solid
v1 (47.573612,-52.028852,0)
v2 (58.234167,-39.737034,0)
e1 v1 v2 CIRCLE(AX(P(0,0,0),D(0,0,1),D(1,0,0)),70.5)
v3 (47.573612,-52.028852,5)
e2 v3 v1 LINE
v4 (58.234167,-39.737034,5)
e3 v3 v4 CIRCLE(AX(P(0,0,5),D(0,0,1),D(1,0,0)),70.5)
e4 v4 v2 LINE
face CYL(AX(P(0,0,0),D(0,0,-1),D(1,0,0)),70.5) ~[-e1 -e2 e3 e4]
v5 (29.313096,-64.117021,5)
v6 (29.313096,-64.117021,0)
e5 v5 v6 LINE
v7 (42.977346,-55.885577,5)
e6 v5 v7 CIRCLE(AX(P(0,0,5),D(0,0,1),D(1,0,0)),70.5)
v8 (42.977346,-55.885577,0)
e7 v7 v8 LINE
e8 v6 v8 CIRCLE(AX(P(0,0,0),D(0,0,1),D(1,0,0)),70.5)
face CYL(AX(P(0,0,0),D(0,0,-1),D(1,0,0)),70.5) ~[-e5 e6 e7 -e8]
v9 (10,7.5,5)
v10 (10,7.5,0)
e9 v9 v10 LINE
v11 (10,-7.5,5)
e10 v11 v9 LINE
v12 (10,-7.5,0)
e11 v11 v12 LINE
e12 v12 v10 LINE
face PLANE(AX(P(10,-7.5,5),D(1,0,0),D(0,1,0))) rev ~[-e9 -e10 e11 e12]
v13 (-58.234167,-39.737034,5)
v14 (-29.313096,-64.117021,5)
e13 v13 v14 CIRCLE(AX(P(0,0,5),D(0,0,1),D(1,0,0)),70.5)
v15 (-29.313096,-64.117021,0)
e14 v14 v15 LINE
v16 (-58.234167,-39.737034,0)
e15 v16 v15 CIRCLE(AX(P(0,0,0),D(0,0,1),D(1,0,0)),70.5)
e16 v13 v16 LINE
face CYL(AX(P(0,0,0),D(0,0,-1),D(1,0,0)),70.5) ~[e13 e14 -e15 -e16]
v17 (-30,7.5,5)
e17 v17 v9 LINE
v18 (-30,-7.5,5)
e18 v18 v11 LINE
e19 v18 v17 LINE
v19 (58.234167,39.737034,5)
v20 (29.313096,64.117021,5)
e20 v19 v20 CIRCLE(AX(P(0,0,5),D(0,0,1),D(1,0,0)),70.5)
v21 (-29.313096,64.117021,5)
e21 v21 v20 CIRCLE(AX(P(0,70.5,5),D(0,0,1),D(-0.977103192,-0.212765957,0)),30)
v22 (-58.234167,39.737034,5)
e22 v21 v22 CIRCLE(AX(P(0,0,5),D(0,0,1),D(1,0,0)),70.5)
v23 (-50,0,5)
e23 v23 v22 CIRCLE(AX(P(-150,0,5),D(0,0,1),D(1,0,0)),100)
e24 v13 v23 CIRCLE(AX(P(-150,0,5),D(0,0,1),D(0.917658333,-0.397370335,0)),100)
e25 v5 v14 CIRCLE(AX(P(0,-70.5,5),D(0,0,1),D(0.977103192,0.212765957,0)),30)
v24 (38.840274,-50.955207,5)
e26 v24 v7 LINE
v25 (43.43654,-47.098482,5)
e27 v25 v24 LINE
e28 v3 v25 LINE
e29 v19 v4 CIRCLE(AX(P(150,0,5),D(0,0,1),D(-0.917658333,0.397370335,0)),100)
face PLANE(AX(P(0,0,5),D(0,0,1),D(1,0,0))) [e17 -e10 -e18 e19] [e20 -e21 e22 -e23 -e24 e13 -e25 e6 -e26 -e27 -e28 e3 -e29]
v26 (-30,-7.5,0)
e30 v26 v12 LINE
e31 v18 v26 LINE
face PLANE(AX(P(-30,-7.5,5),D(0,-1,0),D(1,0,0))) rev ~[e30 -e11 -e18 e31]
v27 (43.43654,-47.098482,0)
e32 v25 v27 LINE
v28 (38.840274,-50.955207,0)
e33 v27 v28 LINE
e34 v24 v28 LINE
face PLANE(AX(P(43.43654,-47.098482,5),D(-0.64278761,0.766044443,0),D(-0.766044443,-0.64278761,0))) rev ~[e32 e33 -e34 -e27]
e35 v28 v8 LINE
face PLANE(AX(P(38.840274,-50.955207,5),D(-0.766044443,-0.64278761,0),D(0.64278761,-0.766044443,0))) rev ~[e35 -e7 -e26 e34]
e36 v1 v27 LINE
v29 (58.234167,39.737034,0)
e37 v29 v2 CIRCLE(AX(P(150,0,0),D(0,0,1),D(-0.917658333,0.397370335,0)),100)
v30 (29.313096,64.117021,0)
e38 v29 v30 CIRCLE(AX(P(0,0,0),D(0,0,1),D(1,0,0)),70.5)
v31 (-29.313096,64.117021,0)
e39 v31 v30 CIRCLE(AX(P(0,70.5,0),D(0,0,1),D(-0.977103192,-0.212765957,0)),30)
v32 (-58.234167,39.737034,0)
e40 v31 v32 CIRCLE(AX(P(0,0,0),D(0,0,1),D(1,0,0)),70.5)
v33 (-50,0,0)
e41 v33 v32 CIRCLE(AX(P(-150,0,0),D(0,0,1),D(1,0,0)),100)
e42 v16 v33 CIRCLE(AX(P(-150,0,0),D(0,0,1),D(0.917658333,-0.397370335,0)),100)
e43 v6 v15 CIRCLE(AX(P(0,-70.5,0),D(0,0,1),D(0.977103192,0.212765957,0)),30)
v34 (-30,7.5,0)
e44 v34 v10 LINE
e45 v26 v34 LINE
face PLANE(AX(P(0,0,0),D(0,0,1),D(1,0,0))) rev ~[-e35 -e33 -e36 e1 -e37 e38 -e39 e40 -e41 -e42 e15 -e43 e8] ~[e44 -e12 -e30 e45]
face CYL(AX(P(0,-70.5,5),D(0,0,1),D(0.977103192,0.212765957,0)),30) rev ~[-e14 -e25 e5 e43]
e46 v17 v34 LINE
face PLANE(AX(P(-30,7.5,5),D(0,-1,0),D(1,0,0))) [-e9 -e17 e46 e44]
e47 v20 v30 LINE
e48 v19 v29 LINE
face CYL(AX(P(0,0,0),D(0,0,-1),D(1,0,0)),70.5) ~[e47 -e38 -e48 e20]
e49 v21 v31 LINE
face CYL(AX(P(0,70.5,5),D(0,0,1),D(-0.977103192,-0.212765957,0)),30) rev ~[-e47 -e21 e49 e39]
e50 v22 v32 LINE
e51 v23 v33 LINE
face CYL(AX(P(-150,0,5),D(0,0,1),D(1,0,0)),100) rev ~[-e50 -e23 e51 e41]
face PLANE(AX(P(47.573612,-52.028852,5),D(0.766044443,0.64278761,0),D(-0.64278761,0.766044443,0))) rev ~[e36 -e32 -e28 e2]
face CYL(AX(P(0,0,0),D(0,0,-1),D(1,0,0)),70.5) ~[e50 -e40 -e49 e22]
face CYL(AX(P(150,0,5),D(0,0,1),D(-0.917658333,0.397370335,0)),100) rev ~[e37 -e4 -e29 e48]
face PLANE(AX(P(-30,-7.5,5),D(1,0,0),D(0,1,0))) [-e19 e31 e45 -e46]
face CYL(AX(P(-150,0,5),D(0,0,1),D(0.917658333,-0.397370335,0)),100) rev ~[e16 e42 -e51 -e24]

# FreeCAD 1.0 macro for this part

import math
import FreeCAD as App
import Part
import Sketcher
Q = App.Units.Quantity


def add_polygon(sketch, points):
    """Adds a closed chain of lines whose ends are joined by coincident constraints."""
    first, n = sketch.GeometryCount, len(points)
    for a, b in zip(points, points[1:] + points[:1]):
        sketch.addGeometry(Part.LineSegment(App.Vector(*a, 0), App.Vector(*b, 0)), False)
    for i in range(n):
        sketch.addConstraint(Sketcher.Constraint("Coincident", first + i, 2, first + (i + 1) % n, 1))

doc = App.newDocument("Part")
body = doc.addObject("PartDesign::Body", "Body")

# Sketch on XY plane
sketch1 = body.newObject("Sketcher::SketchObject", "Sketch")
sketch1.AttachmentSupport = (doc.getObject("XY_Plane"), [""])
sketch1.MapMode = "FlatFace"
sketch1.addGeometry(Part.Circle(App.Vector(0, 0, 0), App.Vector(0, 0, 1), 70), False)
sketch1.addConstraint(Sketcher.Constraint("Coincident", 0, 3, -1, 1))
sketch1.addConstraint(Sketcher.Constraint("Diameter", 0, Q("141 mm")))
pad1 = body.newObject("PartDesign::Pad", "Pad")
pad1.Profile = sketch1
pad1.Length = 5

# Sketch on XY plane
sketch2 = body.newObject("Sketcher::SketchObject", "Sketch001")
sketch2.AttachmentSupport = (doc.getObject("XY_Plane"), [""])
sketch2.MapMode = "FlatFace"
sketch2.AttachmentOffset = App.Placement(App.Vector(0, 0, 5), App.Rotation())
add_polygon(sketch2, [(-30, 8), (-30, -8), (10, -8), (10, 8)])  # lines 0-3
sketch2.addConstraint(Sketcher.Constraint("Vertical", 0))
sketch2.addConstraint(Sketcher.Constraint("Horizontal", 1))
sketch2.addConstraint(Sketcher.Constraint("Vertical", 2))
sketch2.addConstraint(Sketcher.Constraint("Horizontal", 3))
sketch2.addConstraint(Sketcher.Constraint("DistanceX", 1, 1, 1, 2, Q("40 mm")))
sketch2.addConstraint(Sketcher.Constraint("DistanceY", 0, 2, 0, 1, Q("15 mm")))
sketch2.addConstraint(Sketcher.Constraint("DistanceX", 0, 2, -1, 1, Q("30 mm")))
sketch2.addConstraint(Sketcher.Constraint("DistanceY", 0, 2, -1, 1, Q("7.5 mm")))
pocket1 = body.newObject("PartDesign::Pocket", "Pocket")
pocket1.Profile = sketch2
pocket1.Length = 25

# Sketch on XY plane
sketch3 = body.newObject("Sketcher::SketchObject", "Sketch002")
sketch3.AttachmentSupport = (doc.getObject("XY_Plane"), [""])
sketch3.MapMode = "FlatFace"
sketch3.AttachmentOffset = App.Placement(App.Vector(0, 0, 5), App.Rotation())
sketch3.addGeometry(Part.ArcOfCircle(Part.Circle(App.Vector(0, 0, 0), App.Vector(0, 0, 1), 70), math.radians(65), math.radians(115)), False)
sketch3.addGeometry(Part.ArcOfCircle(Part.Circle(App.Vector(0, 70, 0), App.Vector(0, 0, 1), 30), math.radians(-168), math.radians(-12)), False)
sketch3.addGeometry(Part.ArcOfCircle(Part.Circle(App.Vector(-150, 0, 0), App.Vector(0, 0, 1), 100), math.radians(0), math.radians(23)), False)
sketch3.addGeometry(Part.ArcOfCircle(Part.Circle(App.Vector(0, 0, 0), App.Vector(0, 0, 1), 70), math.radians(146), math.radians(214)), False)
sketch3.addGeometry(Part.ArcOfCircle(Part.Circle(App.Vector(-150, 0, 0), App.Vector(0, 0, 1), 100), math.radians(-23), math.radians(0)), False)
sketch3.addGeometry(Part.ArcOfCircle(Part.Circle(App.Vector(0, -70, 0), App.Vector(0, 0, 1), 30), math.radians(12), math.radians(168)), False)
sketch3.addGeometry(Part.ArcOfCircle(Part.Circle(App.Vector(0, 0, 0), App.Vector(0, 0, 1), 70), math.radians(-115), math.radians(-65)), False)
sketch3.addGeometry(Part.ArcOfCircle(Part.Circle(App.Vector(0, 0, 0), App.Vector(0, 0, 1), 71), math.radians(0), math.radians(34)), False)
sketch3.addGeometry(Part.ArcOfCircle(Part.Circle(App.Vector(150, 0, 0), App.Vector(0, 0, 1), 100), math.radians(157), math.radians(203)), False)
sketch3.addGeometry(Part.ArcOfCircle(Part.Circle(App.Vector(0, 0, 0), App.Vector(0, 0, 1), 71), math.radians(-34), math.radians(0)), False)
sketch3.addConstraint(Sketcher.Constraint("Coincident", 0, 1, 1, 2))
sketch3.addConstraint(Sketcher.Constraint("Coincident", 1, 1, 0, 2))
sketch3.addConstraint(Sketcher.Constraint("Coincident", 2, 2, 3, 1))
sketch3.addConstraint(Sketcher.Constraint("Coincident", 3, 2, 4, 1))
sketch3.addConstraint(Sketcher.Constraint("Tangent", 4, 2, 2, 1))
sketch3.addConstraint(Sketcher.Constraint("Coincident", 5, 1, 6, 2))
sketch3.addConstraint(Sketcher.Constraint("Coincident", 6, 1, 5, 2))
sketch3.addConstraint(Sketcher.Constraint("Coincident", 7, 2, 8, 1))
sketch3.addConstraint(Sketcher.Constraint("Coincident", 8, 2, 9, 1))
sketch3.addConstraint(Sketcher.Constraint("Tangent", 9, 2, 7, 1))
sketch3.addConstraint(Sketcher.Constraint("Coincident", 0, 3, -1, 1))
sketch3.addConstraint(Sketcher.Constraint("Coincident", 3, 3, -1, 1))
sketch3.addConstraint(Sketcher.Constraint("Coincident", 6, 3, -1, 1))
sketch3.addConstraint(Sketcher.Constraint("Coincident", 7, 3, -1, 1))
sketch3.addConstraint(Sketcher.Constraint("Equal", 0, 3))
sketch3.addConstraint(Sketcher.Constraint("Equal", 2, 4))
sketch3.addConstraint(Sketcher.Constraint("Equal", 1, 5))
sketch3.addConstraint(Sketcher.Constraint("Equal", 3, 6))
sketch3.addConstraint(Sketcher.Constraint("Equal", 6, 7))
sketch3.addConstraint(Sketcher.Constraint("Equal", 4, 8))
sketch3.addConstraint(Sketcher.Constraint("Equal", 7, 9))
sketch3.addConstraint(Sketcher.Constraint("Symmetric", 1, 3, 5, 3, -1, 1))
sketch3.addConstraint(Sketcher.Constraint("Symmetric", 2, 3, 8, 3, -1, 1))
sketch3.addConstraint(Sketcher.Constraint("PointOnObject", 1, 3, -2))
sketch3.addConstraint(Sketcher.Constraint("PointOnObject", 2, 3, -1))
sketch3.addConstraint(Sketcher.Constraint("PointOnObject", 4, 2, -1))
sketch3.addConstraint(Sketcher.Constraint("PointOnObject", 9, 2, -1))
sketch3.addConstraint(Sketcher.Constraint("Radius", 1, Q("30 mm")))
sketch3.addConstraint(Sketcher.Constraint("Radius", 2, Q("100 mm")))
sketch3.addConstraint(Sketcher.Constraint("Radius", 0, Q("70.5 mm")))
sketch3.addConstraint(Sketcher.Constraint("DistanceX", 2, 3, -1, 1, Q("150 mm")))
sketch3.addConstraint(Sketcher.Constraint("DistanceY", 5, 3, 1, 3, Q("141 mm")))
pocket2 = body.newObject("PartDesign::Pocket", "Pocket001")
pocket2.Profile = sketch3
pocket2.Length = 25

# Sketch on XY plane
sketch4 = body.newObject("Sketcher::SketchObject", "Sketch003")
sketch4.AttachmentSupport = (doc.getObject("XY_Plane"), [""])
sketch4.MapMode = "FlatFace"
sketch4.AttachmentOffset = App.Placement(App.Vector(0, 0, 5), App.Rotation())
sketch4.addGeometry(Part.ArcOfCircle(Part.Circle(App.Vector(0, 0, 0), App.Vector(0, 0, 1), 70), math.radians(-52.44), math.radians(-47.56)), False)
sketch4.addGeometry(Part.LineSegment(App.Vector(48, -52, 0), App.Vector(43, -47, 0)), False)
sketch4.addGeometry(Part.LineSegment(App.Vector(43, -47, 0), App.Vector(39, -51, 0)), False)
sketch4.addGeometry(Part.LineSegment(App.Vector(39, -51, 0), App.Vector(43, -56, 0)), False)
sketch4.addConstraint(Sketcher.Constraint("Coincident", 0, 2, 1, 1))
sketch4.addConstraint(Sketcher.Constraint("Coincident", 1, 2, 2, 1))
sketch4.addConstraint(Sketcher.Constraint("Coincident", 2, 2, 3, 1))
sketch4.addConstraint(Sketcher.Constraint("Coincident", 3, 2, 0, 1))
sketch4.addConstraint(Sketcher.Constraint("Coincident", 0, 3, -1, 1))
sketch4.addConstraint(Sketcher.Constraint("Perpendicular", 1, 2))
sketch4.addConstraint(Sketcher.Constraint("Perpendicular", 2, 3))
sketch4.addConstraint(Sketcher.Constraint("Equal", 1, 3))
sketch4.addConstraint(Sketcher.Constraint("Radius", 0, Q("70.5 mm")))
sketch4.addConstraint(Sketcher.Constraint("Angle", 1, Q("130 deg")))
sketch4.addConstraint(Sketcher.Constraint("Distance", 2, Q("6 mm")))
sketch4.addConstraint(Sketcher.Constraint("Distance", 1, Q("6.436141 mm")))
pocket3 = body.newObject("PartDesign::Pocket", "Pocket002")
pocket3.Profile = sketch4
pocket3.Length = 25

doc.recompute()
